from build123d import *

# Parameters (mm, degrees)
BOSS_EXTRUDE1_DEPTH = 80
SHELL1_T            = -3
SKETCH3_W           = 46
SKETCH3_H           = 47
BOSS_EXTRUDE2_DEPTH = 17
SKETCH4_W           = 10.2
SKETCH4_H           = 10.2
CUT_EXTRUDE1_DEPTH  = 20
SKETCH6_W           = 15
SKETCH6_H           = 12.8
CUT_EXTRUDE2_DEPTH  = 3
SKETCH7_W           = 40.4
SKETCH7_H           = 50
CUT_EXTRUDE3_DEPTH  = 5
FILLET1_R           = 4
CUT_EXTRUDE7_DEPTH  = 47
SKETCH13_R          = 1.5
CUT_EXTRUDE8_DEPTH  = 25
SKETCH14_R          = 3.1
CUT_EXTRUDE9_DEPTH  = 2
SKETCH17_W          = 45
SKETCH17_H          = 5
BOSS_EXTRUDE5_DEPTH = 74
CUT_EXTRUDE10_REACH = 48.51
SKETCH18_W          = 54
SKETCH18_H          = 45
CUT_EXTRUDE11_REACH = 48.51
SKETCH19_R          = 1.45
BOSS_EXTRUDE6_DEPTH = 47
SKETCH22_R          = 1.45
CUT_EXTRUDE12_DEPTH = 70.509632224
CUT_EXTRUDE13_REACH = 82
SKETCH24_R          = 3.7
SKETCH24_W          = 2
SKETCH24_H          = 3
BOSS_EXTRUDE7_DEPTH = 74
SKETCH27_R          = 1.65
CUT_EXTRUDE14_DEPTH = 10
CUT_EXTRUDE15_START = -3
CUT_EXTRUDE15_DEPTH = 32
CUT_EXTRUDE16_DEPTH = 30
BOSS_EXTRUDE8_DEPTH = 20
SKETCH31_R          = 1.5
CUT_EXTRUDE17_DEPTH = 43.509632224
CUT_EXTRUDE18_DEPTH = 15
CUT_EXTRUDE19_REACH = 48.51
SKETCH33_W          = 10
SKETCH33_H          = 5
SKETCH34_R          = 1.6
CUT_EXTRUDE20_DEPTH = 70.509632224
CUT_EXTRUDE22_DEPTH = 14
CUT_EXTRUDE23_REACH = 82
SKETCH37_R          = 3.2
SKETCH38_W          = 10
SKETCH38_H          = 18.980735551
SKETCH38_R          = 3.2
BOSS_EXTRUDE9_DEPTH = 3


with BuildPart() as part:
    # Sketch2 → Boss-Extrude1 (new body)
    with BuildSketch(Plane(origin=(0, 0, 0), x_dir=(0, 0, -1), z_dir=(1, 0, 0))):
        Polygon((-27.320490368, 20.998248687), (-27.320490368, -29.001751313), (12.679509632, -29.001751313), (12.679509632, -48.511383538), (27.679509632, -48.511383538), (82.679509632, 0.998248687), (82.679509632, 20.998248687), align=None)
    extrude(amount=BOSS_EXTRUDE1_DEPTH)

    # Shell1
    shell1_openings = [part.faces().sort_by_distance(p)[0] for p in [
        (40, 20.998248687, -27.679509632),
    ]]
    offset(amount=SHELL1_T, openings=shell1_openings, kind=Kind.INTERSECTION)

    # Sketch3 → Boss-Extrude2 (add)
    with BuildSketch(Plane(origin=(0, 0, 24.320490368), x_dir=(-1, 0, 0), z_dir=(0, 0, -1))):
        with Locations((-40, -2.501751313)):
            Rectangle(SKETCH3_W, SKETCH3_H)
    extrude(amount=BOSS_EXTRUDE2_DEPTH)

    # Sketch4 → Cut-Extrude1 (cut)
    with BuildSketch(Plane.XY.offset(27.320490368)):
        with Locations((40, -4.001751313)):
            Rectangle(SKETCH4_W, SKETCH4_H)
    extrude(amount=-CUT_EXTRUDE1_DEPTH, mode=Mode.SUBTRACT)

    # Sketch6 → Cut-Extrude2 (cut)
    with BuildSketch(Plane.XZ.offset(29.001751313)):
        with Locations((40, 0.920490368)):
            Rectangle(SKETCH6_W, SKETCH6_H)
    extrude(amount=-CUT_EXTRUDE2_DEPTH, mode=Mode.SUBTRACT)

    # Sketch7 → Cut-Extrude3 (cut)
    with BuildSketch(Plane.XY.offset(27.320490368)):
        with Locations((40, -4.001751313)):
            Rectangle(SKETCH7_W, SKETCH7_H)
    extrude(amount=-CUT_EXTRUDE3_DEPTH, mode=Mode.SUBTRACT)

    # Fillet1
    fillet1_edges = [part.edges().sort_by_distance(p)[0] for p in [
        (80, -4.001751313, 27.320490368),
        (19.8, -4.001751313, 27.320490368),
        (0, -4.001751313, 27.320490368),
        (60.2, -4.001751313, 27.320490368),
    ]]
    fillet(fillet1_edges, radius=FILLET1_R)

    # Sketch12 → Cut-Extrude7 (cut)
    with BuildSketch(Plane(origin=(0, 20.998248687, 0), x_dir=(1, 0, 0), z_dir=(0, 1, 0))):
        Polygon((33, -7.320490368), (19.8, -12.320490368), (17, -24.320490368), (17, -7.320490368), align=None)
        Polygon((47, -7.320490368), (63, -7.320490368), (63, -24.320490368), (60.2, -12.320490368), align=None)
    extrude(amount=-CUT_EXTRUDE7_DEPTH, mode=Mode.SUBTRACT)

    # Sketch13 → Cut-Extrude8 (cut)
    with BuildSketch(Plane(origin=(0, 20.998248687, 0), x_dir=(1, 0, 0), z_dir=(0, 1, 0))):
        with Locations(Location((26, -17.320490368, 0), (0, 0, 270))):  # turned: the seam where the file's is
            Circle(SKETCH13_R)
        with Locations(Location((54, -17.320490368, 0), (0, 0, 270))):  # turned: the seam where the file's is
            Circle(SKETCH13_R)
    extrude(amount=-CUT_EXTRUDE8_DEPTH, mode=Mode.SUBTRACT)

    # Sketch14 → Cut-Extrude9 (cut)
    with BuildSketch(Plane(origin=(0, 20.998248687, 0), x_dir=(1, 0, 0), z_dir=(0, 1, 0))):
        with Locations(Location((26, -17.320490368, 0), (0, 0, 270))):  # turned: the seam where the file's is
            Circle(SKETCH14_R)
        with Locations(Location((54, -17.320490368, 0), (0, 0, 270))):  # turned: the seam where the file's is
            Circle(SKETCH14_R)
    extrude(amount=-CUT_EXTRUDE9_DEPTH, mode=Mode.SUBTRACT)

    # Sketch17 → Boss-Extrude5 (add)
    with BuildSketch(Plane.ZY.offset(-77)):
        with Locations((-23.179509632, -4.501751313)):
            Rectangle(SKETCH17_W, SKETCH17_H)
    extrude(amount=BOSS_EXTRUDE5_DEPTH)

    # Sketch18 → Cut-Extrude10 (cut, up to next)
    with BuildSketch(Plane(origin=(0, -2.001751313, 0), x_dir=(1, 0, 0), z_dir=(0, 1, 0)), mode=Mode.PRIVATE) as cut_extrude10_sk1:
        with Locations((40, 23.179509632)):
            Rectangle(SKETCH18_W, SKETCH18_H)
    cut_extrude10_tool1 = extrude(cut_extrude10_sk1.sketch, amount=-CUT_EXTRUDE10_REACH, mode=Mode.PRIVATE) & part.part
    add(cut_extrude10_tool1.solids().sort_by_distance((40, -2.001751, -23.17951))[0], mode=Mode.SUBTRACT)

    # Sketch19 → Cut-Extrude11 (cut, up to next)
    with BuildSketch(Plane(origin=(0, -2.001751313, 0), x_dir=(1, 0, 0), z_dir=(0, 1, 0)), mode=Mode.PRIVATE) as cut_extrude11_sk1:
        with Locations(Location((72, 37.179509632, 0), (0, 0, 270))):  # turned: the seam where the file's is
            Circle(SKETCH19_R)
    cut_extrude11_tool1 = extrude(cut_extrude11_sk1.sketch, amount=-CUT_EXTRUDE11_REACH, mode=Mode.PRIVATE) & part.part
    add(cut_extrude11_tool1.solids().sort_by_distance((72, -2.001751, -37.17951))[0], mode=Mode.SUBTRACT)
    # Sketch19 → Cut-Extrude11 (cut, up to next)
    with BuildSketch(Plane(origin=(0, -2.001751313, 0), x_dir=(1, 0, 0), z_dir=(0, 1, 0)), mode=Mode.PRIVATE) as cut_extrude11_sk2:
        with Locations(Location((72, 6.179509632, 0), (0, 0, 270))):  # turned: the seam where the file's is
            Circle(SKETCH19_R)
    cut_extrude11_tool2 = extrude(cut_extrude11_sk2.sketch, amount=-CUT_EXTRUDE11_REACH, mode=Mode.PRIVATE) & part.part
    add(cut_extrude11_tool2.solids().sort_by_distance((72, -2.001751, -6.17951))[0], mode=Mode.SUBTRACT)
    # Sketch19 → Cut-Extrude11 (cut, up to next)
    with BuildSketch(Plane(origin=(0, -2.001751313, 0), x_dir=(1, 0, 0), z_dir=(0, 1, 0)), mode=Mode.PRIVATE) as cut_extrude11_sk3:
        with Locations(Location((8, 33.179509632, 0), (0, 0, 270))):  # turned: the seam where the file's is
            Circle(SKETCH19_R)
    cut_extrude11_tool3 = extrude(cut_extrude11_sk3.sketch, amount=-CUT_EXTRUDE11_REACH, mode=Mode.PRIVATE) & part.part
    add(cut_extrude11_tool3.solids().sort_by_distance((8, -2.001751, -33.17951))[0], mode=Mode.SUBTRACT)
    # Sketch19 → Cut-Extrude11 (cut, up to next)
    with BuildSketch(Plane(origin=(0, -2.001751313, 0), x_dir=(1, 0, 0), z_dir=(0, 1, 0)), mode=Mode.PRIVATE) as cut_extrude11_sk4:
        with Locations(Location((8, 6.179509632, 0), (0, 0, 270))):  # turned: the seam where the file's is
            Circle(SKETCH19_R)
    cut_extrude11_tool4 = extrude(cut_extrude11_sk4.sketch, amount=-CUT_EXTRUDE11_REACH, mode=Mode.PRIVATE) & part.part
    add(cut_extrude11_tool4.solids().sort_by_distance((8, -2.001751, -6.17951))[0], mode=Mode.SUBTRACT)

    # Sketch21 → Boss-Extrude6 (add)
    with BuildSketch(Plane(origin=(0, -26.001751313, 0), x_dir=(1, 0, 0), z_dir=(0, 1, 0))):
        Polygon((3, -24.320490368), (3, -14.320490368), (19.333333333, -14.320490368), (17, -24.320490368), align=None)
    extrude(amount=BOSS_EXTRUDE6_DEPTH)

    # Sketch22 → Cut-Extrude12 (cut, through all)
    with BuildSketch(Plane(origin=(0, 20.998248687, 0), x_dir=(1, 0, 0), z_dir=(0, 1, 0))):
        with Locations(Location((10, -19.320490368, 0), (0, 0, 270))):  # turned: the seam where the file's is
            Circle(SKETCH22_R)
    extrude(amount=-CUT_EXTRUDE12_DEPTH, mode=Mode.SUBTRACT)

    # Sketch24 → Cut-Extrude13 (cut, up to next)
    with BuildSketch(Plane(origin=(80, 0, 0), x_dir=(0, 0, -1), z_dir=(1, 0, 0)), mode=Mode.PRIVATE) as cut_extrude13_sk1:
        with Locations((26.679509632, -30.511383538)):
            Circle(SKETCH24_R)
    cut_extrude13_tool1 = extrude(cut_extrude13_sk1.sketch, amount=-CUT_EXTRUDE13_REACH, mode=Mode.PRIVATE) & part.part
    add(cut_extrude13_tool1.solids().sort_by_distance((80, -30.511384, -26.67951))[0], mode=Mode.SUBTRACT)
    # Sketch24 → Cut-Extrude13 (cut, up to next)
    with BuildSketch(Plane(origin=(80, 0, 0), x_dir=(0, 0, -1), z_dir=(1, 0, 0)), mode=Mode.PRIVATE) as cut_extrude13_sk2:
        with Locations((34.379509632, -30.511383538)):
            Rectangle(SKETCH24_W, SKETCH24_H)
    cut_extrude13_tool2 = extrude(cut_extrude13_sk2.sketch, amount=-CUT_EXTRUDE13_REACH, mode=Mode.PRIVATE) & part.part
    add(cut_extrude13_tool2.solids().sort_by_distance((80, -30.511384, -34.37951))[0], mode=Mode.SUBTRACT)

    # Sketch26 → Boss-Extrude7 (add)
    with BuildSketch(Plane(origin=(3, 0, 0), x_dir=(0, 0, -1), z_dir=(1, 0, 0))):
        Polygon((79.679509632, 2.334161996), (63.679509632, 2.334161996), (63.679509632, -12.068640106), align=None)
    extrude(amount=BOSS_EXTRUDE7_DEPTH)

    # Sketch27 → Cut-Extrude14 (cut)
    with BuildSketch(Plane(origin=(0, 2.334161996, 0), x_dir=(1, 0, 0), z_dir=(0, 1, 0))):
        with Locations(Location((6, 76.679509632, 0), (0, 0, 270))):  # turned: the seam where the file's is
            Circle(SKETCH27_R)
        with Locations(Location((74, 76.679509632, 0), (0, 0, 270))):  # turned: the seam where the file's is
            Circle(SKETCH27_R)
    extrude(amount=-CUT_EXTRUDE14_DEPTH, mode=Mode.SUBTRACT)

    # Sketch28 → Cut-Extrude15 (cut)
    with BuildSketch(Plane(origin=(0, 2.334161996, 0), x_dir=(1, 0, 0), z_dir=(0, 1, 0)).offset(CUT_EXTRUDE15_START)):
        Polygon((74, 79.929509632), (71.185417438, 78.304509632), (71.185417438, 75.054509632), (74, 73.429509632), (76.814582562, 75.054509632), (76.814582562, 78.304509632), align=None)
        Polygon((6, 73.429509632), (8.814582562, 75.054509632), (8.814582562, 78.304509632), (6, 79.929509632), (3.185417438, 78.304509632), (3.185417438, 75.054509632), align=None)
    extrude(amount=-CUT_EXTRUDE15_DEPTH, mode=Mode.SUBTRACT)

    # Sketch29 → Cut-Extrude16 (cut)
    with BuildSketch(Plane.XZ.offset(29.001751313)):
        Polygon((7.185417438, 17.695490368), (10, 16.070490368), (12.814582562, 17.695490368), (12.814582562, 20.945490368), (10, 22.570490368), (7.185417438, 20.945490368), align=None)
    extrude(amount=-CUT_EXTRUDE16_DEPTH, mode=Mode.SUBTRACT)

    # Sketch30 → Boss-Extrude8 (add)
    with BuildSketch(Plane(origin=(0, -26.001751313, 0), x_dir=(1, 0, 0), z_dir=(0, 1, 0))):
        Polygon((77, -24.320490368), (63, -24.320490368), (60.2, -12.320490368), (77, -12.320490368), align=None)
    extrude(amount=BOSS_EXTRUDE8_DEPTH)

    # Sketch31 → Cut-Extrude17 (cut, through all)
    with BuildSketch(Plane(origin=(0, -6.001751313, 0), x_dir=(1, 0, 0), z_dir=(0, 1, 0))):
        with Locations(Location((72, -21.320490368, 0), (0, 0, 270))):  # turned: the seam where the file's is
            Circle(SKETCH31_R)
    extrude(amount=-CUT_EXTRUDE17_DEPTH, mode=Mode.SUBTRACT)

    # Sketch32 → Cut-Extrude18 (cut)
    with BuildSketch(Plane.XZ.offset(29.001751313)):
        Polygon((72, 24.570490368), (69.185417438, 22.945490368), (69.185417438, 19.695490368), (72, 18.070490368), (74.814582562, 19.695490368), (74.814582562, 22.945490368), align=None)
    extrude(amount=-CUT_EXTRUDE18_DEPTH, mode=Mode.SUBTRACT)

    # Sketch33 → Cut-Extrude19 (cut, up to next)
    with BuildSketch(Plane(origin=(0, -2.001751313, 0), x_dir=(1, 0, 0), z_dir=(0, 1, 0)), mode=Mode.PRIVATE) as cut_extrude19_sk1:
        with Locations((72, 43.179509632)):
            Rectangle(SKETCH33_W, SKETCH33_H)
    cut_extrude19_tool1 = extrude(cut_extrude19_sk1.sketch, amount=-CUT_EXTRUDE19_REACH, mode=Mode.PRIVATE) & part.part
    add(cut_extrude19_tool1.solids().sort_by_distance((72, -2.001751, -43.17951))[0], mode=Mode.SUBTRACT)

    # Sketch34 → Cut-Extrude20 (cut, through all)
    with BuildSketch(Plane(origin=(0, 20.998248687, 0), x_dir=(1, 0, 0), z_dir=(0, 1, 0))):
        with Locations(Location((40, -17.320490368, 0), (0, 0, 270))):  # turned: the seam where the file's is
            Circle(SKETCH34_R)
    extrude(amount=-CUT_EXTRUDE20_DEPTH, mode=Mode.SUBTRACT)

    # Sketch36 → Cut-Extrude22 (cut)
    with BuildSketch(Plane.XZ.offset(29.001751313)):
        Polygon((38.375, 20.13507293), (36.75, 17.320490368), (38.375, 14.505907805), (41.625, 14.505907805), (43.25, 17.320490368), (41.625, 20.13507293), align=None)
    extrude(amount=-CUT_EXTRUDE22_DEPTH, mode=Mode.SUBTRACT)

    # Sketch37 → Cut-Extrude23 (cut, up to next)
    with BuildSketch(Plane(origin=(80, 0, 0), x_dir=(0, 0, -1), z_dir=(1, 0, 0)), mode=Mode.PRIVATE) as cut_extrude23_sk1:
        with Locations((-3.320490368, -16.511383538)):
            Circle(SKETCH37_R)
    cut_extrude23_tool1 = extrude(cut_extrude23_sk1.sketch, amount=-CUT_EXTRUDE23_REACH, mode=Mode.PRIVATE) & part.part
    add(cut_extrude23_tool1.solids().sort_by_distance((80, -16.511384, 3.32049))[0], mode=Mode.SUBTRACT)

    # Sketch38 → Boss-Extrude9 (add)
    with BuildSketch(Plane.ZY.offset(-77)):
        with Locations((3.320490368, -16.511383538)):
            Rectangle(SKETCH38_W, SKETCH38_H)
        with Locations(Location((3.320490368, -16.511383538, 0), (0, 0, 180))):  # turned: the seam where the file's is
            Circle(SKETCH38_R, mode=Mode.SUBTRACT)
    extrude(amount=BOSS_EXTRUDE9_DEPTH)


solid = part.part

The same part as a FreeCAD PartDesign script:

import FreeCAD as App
import Part
import Sketcher
Q = App.Units.Quantity


def edges_at(feature, points):
    """Names of the edges that pass closest to the given points."""
    edges = feature.Shape.Edges
    near = lambda p: min(range(len(edges)), key=lambda i: edges[i].distToShape(Part.Vertex(*p))[0])
    return sorted({f"Edge{near(p) + 1}" for p in points})


def faces_at(feature, points):
    """Names of the faces that lie closest to the given points."""
    faces = feature.Shape.Faces
    near = lambda p: min(range(len(faces)), key=lambda i: faces[i].distToShape(Part.Vertex(*p))[0])
    return sorted({f"Face{near(p) + 1}" for p in points})


def add_polygon(sketch, points):
    """Adds a closed chain of lines whose ends are joined by coincident constraints."""
    first, n = sketch.GeometryCount, len(points)
    for a, b in zip(points, points[1:] + points[:1]):
        sketch.addGeometry(Part.LineSegment(App.Vector(*a, 0), App.Vector(*b, 0)), False)
    for i in range(n):
        sketch.addConstraint(Sketcher.Constraint("Coincident", first + i, 2, first + (i + 1) % n, 1))

doc = App.newDocument("Part")
body = doc.addObject("PartDesign::Body", "Body")

# Sketch on YZ plane
sketch1 = body.newObject("Sketcher::SketchObject", "Sketch")
sketch1.AttachmentSupport = (doc.getObject("YZ_Plane"), [""])
sketch1.MapMode = "FlatFace"
add_polygon(sketch1, [(21, 27), (-29, 27), (-29, -13), (-49, -13), (-49, -28), (1, -83), (21, -83)])  # lines 0-6
sketch1.addConstraint([
    Sketcher.Constraint("Horizontal", 0),
    Sketcher.Constraint("Vertical", 1),
    Sketcher.Constraint("Horizontal", 2),
    Sketcher.Constraint("Vertical", 3),
    Sketcher.Constraint("Horizontal", 5),
    Sketcher.Constraint("Vertical", 6),
    Sketcher.Constraint("DistanceX", 0, 2, 0, 1, Q("50 mm")),
    Sketcher.Constraint("DistanceX", 5, 1, 5, 2, Q("20 mm")),
    Sketcher.Constraint("DistanceY", 1, 2, 1, 1, Q("40 mm")),
    Sketcher.Constraint("DistanceY", 3, 2, 3, 1, Q("15 mm")),
    Sketcher.Constraint("DistanceY", 6, 1, 6, 2, Q("110 mm")),
    Sketcher.Constraint("DistanceX", 2, 2, 2, 1, Q("19.509632 mm")),
    Sketcher.Constraint("DistanceX", 0, 2, -1, 1, Q("29.001751 mm")),
    Sketcher.Constraint("DistanceY", -1, 1, 0, 2, Q("27.32049 mm")),
])
pad1 = body.newObject("PartDesign::Pad", "Pad")
pad1.Profile = sketch1
pad1.Length = 80
doc.recompute()

thickness = body.newObject("PartDesign::Thickness", "Thickness")
thickness.Base = (pad1, faces_at(pad1, [(40, 20.998, -27.68)]))
thickness.Value = 3
thickness.Reversed = True
thickness.Join = "Intersection"

# Sketch on XY plane
sketch2 = body.newObject("Sketcher::SketchObject", "Sketch001")
sketch2.AttachmentSupport = (doc.getObject("XY_Plane"), [""])
sketch2.MapMode = "FlatFace"
sketch2.AttachmentOffset = App.Placement(App.Vector(0, 0, 24.32049), App.Rotation())
add_polygon(sketch2, [(63, 21), (63, -26), (17, -26), (17, 21)])  # lines 0-3
sketch2.addConstraint([
    Sketcher.Constraint("Vertical", 0),
    Sketcher.Constraint("Horizontal", 1),
    Sketcher.Constraint("Vertical", 2),
    Sketcher.Constraint("Horizontal", 3),
    Sketcher.Constraint("DistanceX", 1, 2, 1, 1, Q("46 mm")),
    Sketcher.Constraint("DistanceY", 0, 2, 0, 1, Q("47 mm")),
    Sketcher.Constraint("DistanceX", -1, 1, 0, 2, Q("63 mm")),
    Sketcher.Constraint("DistanceY", 0, 2, -1, 1, Q("26.001751 mm")),
])
pad2 = body.newObject("PartDesign::Pad", "Pad001")
pad2.Profile = sketch2
pad2.Length = 17
pad2.Reversed = True

# Sketch on XY plane
sketch3 = body.newObject("Sketcher::SketchObject", "Sketch002")
sketch3.AttachmentSupport = (doc.getObject("XY_Plane"), [""])
sketch3.MapMode = "FlatFace"
sketch3.AttachmentOffset = App.Placement(App.Vector(0, 0, 27.32049), App.Rotation())
add_polygon(sketch3, [(35, 1), (35, -9), (45, -9), (45, 1)])  # lines 0-3
sketch3.addConstraint([
    Sketcher.Constraint("Vertical", 0),
    Sketcher.Constraint("Horizontal", 1),
    Sketcher.Constraint("Vertical", 2),
    Sketcher.Constraint("Horizontal", 3),
    Sketcher.Constraint("Equal", 3, 0),
    Sketcher.Constraint("DistanceX", 1, 1, 1, 2, Q("10.2 mm")),
    Sketcher.Constraint("DistanceX", -1, 1, 0, 2, Q("34.9 mm")),
    Sketcher.Constraint("DistanceY", 0, 2, -1, 1, Q("9.101751 mm")),
])
pocket1 = body.newObject("PartDesign::Pocket", "Pocket")
pocket1.Profile = sketch3
pocket1.Length = 20

# Sketch on XZ plane
sketch4 = body.newObject("Sketcher::SketchObject", "Sketch003")
sketch4.AttachmentSupport = (doc.getObject("XZ_Plane"), [""])
sketch4.MapMode = "FlatFace"
sketch4.AttachmentOffset = App.Placement(App.Vector(0, 0, 29.001751), App.Rotation())
add_polygon(sketch4, [(32, 7), (32, -5), (48, -5), (48, 7)])  # lines 0-3
sketch4.addConstraint([
    Sketcher.Constraint("Vertical", 0),
    Sketcher.Constraint("Horizontal", 1),
    Sketcher.Constraint("Vertical", 2),
    Sketcher.Constraint("Horizontal", 3),
    Sketcher.Constraint("DistanceX", 1, 1, 1, 2, Q("15 mm")),
    Sketcher.Constraint("DistanceY", 0, 2, 0, 1, Q("12.8 mm")),
    Sketcher.Constraint("DistanceX", -1, 1, 0, 2, Q("32.5 mm")),
    Sketcher.Constraint("DistanceY", 0, 2, -1, 1, Q("5.47951 mm")),
])
pocket2 = body.newObject("PartDesign::Pocket", "Pocket001")
pocket2.Profile = sketch4
pocket2.Length = 3

# Sketch on XY plane
sketch5 = body.newObject("Sketcher::SketchObject", "Sketch004")
sketch5.AttachmentSupport = (doc.getObject("XY_Plane"), [""])
sketch5.MapMode = "FlatFace"
sketch5.AttachmentOffset = App.Placement(App.Vector(0, 0, 27.32049), App.Rotation())
add_polygon(sketch5, [(20, 21), (20, -29), (60, -29), (60, 21)])  # lines 0-3
sketch5.addConstraint([
    Sketcher.Constraint("Vertical", 0),
    Sketcher.Constraint("Horizontal", 1),
    Sketcher.Constraint("Vertical", 2),
    Sketcher.Constraint("Horizontal", 3),
    Sketcher.Constraint("DistanceY", 0, 2, 0, 1, Q("50 mm")),
    Sketcher.Constraint("DistanceX", 1, 1, 1, 2, Q("40.4 mm")),
    Sketcher.Constraint("DistanceX", -1, 1, 0, 2, Q("19.8 mm")),
    Sketcher.Constraint("DistanceY", 0, 2, -1, 1, Q("29.001751 mm")),
])
pocket3 = body.newObject("PartDesign::Pocket", "Pocket002")
pocket3.Profile = sketch5
pocket3.Length = 5
doc.recompute()

fillet = body.newObject("PartDesign::Fillet", "Fillet")
fillet.Base = (pocket3, edges_at(pocket3, [
    (80, -4.002, 27.32),
    (19.8, -4.002, 27.32),
    (0, -4.002, 27.32),
    (60.2, -4.002, 27.32),
]))
fillet.Radius = 4

# Sketch on XZ plane
sketch6 = body.newObject("Sketcher::SketchObject", "Sketch005")
sketch6.AttachmentSupport = (doc.getObject("XZ_Plane"), [""])
sketch6.MapMode = "FlatFace"
sketch6.AttachmentOffset = App.Placement(App.Vector(0, 0, -20.998249), App.Rotation())
add_polygon(sketch6, [(20, 12), (33, 7), (17, 7), (17, 24)])  # lines 0-3
add_polygon(sketch6, [(63, 7), (47, 7), (60, 12), (63, 24)])  # lines 4-7
sketch6.addConstraint([
    Sketcher.Constraint("Horizontal", 1),
    Sketcher.Constraint("Vertical", 2),
    Sketcher.Constraint("Horizontal", 4),
    Sketcher.Constraint("Vertical", 7),
    Sketcher.Constraint("Horizontal", 1, 2, 4, 2),
    Sketcher.Constraint("Horizontal", 3, 2, 5, 2),
    Sketcher.Constraint("Horizontal", 2, 2, 6, 2),
    Sketcher.Constraint("Equal", 1, 4),
    Sketcher.Constraint("Equal", 0, 5),
    Sketcher.Constraint("DistanceX", 1, 2, 1, 1, Q("16 mm")),
    Sketcher.Constraint("DistanceY", 2, 1, 2, 2, Q("17 mm")),
    Sketcher.Constraint("DistanceX", -1, 1, 0, 2, Q("33 mm")),
    Sketcher.Constraint("DistanceX", -1, 1, 4, 2, Q("47 mm")),
    Sketcher.Constraint("DistanceY", 1, 2, 3, 2, Q("5 mm")),
    Sketcher.Constraint("DistanceX", -1, 1, 3, 2, Q("19.8 mm")),
    Sketcher.Constraint("DistanceY", -1, 1, 0, 2, Q("7.32049 mm")),
])
pocket4 = body.newObject("PartDesign::Pocket", "Pocket003")
pocket4.Profile = sketch6
pocket4.Length = 47
pocket4.Reversed = True

# Sketch on XZ plane
sketch7 = body.newObject("Sketcher::SketchObject", "Sketch006")
sketch7.AttachmentSupport = (doc.getObject("XZ_Plane"), [""])
sketch7.MapMode = "FlatFace"
sketch7.AttachmentOffset = App.Placement(App.Vector(0, 0, -20.998249), App.Rotation())
sketch7.addGeometry([
    Part.Circle(App.Vector(26, 17.3, 0), App.Vector(0, 0, 1), 1.5),
    Part.Circle(App.Vector(54, 17.3, 0), App.Vector(0, 0, 1), 1.5),
], False)
sketch7.addConstraint([
    Sketcher.Constraint("Equal", 0, 1),
    Sketcher.Constraint("Horizontal", 0, 3, 1, 3),
    Sketcher.Constraint("Diameter", 0, Q("3 mm")),
    Sketcher.Constraint("DistanceX", -1, 1, 0, 3, Q("26 mm")),
    Sketcher.Constraint("DistanceX", -1, 1, 1, 3, Q("54 mm")),
    Sketcher.Constraint("DistanceY", -1, 1, 0, 3, Q("17.32049 mm")),
])
pocket5 = body.newObject("PartDesign::Pocket", "Pocket004")
pocket5.Profile = sketch7
pocket5.Length = 25
pocket5.Reversed = True

# Sketch on XZ plane
sketch8 = body.newObject("Sketcher::SketchObject", "Sketch007")
sketch8.AttachmentSupport = (doc.getObject("XZ_Plane"), [""])
sketch8.MapMode = "FlatFace"
sketch8.AttachmentOffset = App.Placement(App.Vector(0, 0, -20.998249), App.Rotation())
sketch8.addGeometry([
    Part.Circle(App.Vector(26, 17.3, 0), App.Vector(0, 0, 1), 3.1),
    Part.Circle(App.Vector(54, 17.3, 0), App.Vector(0, 0, 1), 3.1),
], False)
sketch8.addConstraint([
    Sketcher.Constraint("Equal", 0, 1),
    Sketcher.Constraint("Horizontal", 0, 3, 1, 3),
    Sketcher.Constraint("Diameter", 0, Q("6.2 mm")),
    Sketcher.Constraint("DistanceX", -1, 1, 0, 3, Q("26 mm")),
    Sketcher.Constraint("DistanceX", -1, 1, 1, 3, Q("54 mm")),
    Sketcher.Constraint("DistanceY", -1, 1, 0, 3, Q("17.32049 mm")),
])
pocket6 = body.newObject("PartDesign::Pocket", "Pocket005")
pocket6.Profile = sketch8
pocket6.Length = 2
pocket6.Reversed = True

# Sketch on YZ plane
sketch9 = body.newObject("Sketcher::SketchObject", "Sketch008")
sketch9.AttachmentSupport = (doc.getObject("YZ_Plane"), [""])
sketch9.MapMode = "FlatFace"
sketch9.AttachmentOffset = App.Placement(App.Vector(0, 0, 77), App.Rotation())
add_polygon(sketch9, [(-2, -46), (-7, -46), (-7, -1), (-2, -1)])  # lines 0-3
sketch9.addConstraint([
    Sketcher.Constraint("Horizontal", 0),
    Sketcher.Constraint("Vertical", 1),
    Sketcher.Constraint("Horizontal", 2),
    Sketcher.Constraint("Vertical", 3),
    Sketcher.Constraint("DistanceX", 0, 2, 0, 1, Q("5 mm")),
    Sketcher.Constraint("DistanceY", 1, 1, 1, 2, Q("45 mm")),
    Sketcher.Constraint("DistanceX", 0, 2, -1, 1, Q("7.001751 mm")),
    Sketcher.Constraint("DistanceY", 0, 2, -1, 1, Q("45.67951 mm")),
])
pad3 = body.newObject("PartDesign::Pad", "Pad002")
pad3.Profile = sketch9
pad3.Length = 74
pad3.Reversed = True

# Sketch on XZ plane
sketch10 = body.newObject("Sketcher::SketchObject", "Sketch009")
sketch10.AttachmentSupport = (doc.getObject("XZ_Plane"), [""])
sketch10.MapMode = "FlatFace"
sketch10.AttachmentOffset = App.Placement(App.Vector(0, 0, 2.001751), App.Rotation())
add_polygon(sketch10, [(13, -46), (13, -1), (67, -1), (67, -46)])  # lines 0-3
sketch10.addConstraint([
    Sketcher.Constraint("Vertical", 0),
    Sketcher.Constraint("Horizontal", 1),
    Sketcher.Constraint("Vertical", 2),
    Sketcher.Constraint("Horizontal", 3),
    Sketcher.Constraint("DistanceX", 1, 1, 1, 2, Q("54 mm")),
    Sketcher.Constraint("DistanceY", 0, 1, 0, 2, Q("45 mm")),
    Sketcher.Constraint("DistanceX", -1, 1, 0, 2, Q("13 mm")),
    Sketcher.Constraint("DistanceY", 0, 2, -1, 1, Q("0.67951 mm")),
])
pocket7 = body.newObject("PartDesign::Pocket", "Pocket006")
pocket7.Profile = sketch10
pocket7.Type = "UpToFirst"
pocket7.Reversed = True

# Sketch on XZ plane
sketch11 = body.newObject("Sketcher::SketchObject", "Sketch010")
sketch11.AttachmentSupport = (doc.getObject("XZ_Plane"), [""])
sketch11.MapMode = "FlatFace"
sketch11.AttachmentOffset = App.Placement(App.Vector(0, 0, 2.001751), App.Rotation())
sketch11.addGeometry(Part.Circle(App.Vector(72, -37.2, 0), App.Vector(0, 0, 1), 1.4), False)
sketch11.addConstraint([
    Sketcher.Constraint("Diameter", 0, Q("2.9 mm")),
    Sketcher.Constraint("DistanceX", -1, 1, 0, 3, Q("72 mm")),
    Sketcher.Constraint("DistanceY", 0, 3, -1, 1, Q("37.17951 mm")),
])
pocket8 = body.newObject("PartDesign::Pocket", "Pocket007")
pocket8.Profile = sketch11
pocket8.Type = "UpToFirst"
pocket8.Reversed = True

# Sketch on XZ plane
sketch12 = body.newObject("Sketcher::SketchObject", "Sketch011")
sketch12.AttachmentSupport = (doc.getObject("XZ_Plane"), [""])
sketch12.MapMode = "FlatFace"
sketch12.AttachmentOffset = App.Placement(App.Vector(0, 0, 2.001751), App.Rotation())
sketch12.addGeometry(Part.Circle(App.Vector(72, -6.2, 0), App.Vector(0, 0, 1), 1.4), False)
sketch12.addConstraint([
    Sketcher.Constraint("Diameter", 0, Q("2.9 mm")),
    Sketcher.Constraint("DistanceX", -1, 1, 0, 3, Q("72 mm")),
    Sketcher.Constraint("DistanceY", 0, 3, -1, 1, Q("6.17951 mm")),
])
pocket9 = body.newObject("PartDesign::Pocket", "Pocket008")
pocket9.Profile = sketch12
pocket9.Type = "UpToFirst"
pocket9.Reversed = True

# Sketch on XZ plane
sketch13 = body.newObject("Sketcher::SketchObject", "Sketch012")
sketch13.AttachmentSupport = (doc.getObject("XZ_Plane"), [""])
sketch13.MapMode = "FlatFace"
sketch13.AttachmentOffset = App.Placement(App.Vector(0, 0, 2.001751), App.Rotation())
sketch13.addGeometry(Part.Circle(App.Vector(8, -33.2, 0), App.Vector(0, 0, 1), 1.4), False)
sketch13.addConstraint([
    Sketcher.Constraint("Diameter", 0, Q("2.9 mm")),
    Sketcher.Constraint("DistanceX", -1, 1, 0, 3, Q("8 mm")),
    Sketcher.Constraint("DistanceY", 0, 3, -1, 1, Q("33.17951 mm")),
])
pocket10 = body.newObject("PartDesign::Pocket", "Pocket009")
pocket10.Profile = sketch13
pocket10.Type = "UpToFirst"
pocket10.Reversed = True

# Sketch on XZ plane
sketch14 = body.newObject("Sketcher::SketchObject", "Sketch013")
sketch14.AttachmentSupport = (doc.getObject("XZ_Plane"), [""])
sketch14.MapMode = "FlatFace"
sketch14.AttachmentOffset = App.Placement(App.Vector(0, 0, 2.001751), App.Rotation())
sketch14.addGeometry(Part.Circle(App.Vector(8, -6.2, 0), App.Vector(0, 0, 1), 1.4), False)
sketch14.addConstraint([
    Sketcher.Constraint("Diameter", 0, Q("2.9 mm")),
    Sketcher.Constraint("DistanceX", -1, 1, 0, 3, Q("8 mm")),
    Sketcher.Constraint("DistanceY", 0, 3, -1, 1, Q("6.17951 mm")),
])
pocket11 = body.newObject("PartDesign::Pocket", "Pocket010")
pocket11.Profile = sketch14
pocket11.Type = "UpToFirst"
pocket11.Reversed = True

# Sketch on XZ plane
sketch15 = body.newObject("Sketcher::SketchObject", "Sketch014")
sketch15.AttachmentSupport = (doc.getObject("XZ_Plane"), [""])
sketch15.MapMode = "FlatFace"
sketch15.AttachmentOffset = App.Placement(App.Vector(0, 0, 26.001751), App.Rotation())
add_polygon(sketch15, [(3, 14), (3, 24), (17, 24), (19, 14)])  # lines 0-3
sketch15.addConstraint([
    Sketcher.Constraint("Vertical", 0),
    Sketcher.Constraint("Horizontal", 1),
    Sketcher.Constraint("Horizontal", 3),
    Sketcher.Constraint("DistanceX", 1, 1, 1, 2, Q("14 mm")),
    Sketcher.Constraint("DistanceY", 0, 1, 0, 2, Q("10 mm")),
    Sketcher.Constraint("DistanceX", -1, 1, 0, 2, Q("3 mm")),
    Sketcher.Constraint("DistanceX", 3, 2, 3, 1, Q("16.333333 mm")),
    Sketcher.Constraint("DistanceY", -1, 1, 0, 2, Q("24.32049 mm")),
])
pad4 = body.newObject("PartDesign::Pad", "Pad003")
pad4.Profile = sketch15
pad4.Length = 47
pad4.Reversed = True

# Sketch on XZ plane
sketch16 = body.newObject("Sketcher::SketchObject", "Sketch015")
sketch16.AttachmentSupport = (doc.getObject("XZ_Plane"), [""])
sketch16.MapMode = "FlatFace"
sketch16.AttachmentOffset = App.Placement(App.Vector(0, 0, -20.998249), App.Rotation())
sketch16.addGeometry(Part.Circle(App.Vector(10, 19.3, 0), App.Vector(0, 0, 1), 1.4), False)
sketch16.addConstraint([
    Sketcher.Constraint("Diameter", 0, Q("2.9 mm")),
    Sketcher.Constraint("DistanceX", -1, 1, 0, 3, Q("10 mm")),
    Sketcher.Constraint("DistanceY", -1, 1, 0, 3, Q("19.32049 mm")),
])
pocket12 = body.newObject("PartDesign::Pocket", "Pocket011")
pocket12.Profile = sketch16
pocket12.Type = "ThroughAll"
pocket12.Reversed = True

# Sketch on YZ plane
sketch17 = body.newObject("Sketcher::SketchObject", "Sketch016")
sketch17.AttachmentSupport = (doc.getObject("YZ_Plane"), [""])
sketch17.MapMode = "FlatFace"
sketch17.AttachmentOffset = App.Placement(App.Vector(0, 0, 80), App.Rotation())
sketch17.addGeometry(Part.Circle(App.Vector(-30.5, -26.7, 0), App.Vector(0, 0, 1), 3.7), False)
sketch17.addConstraint([
    Sketcher.Constraint("Diameter", 0, Q("7.4 mm")),
    Sketcher.Constraint("DistanceY", 0, 3, -1, 1, Q("26.67951 mm")),
    Sketcher.Constraint("DistanceX", 0, 3, -1, 1, Q("30.511384 mm")),
])
pocket13 = body.newObject("PartDesign::Pocket", "Pocket012")
pocket13.Profile = sketch17
pocket13.Type = "UpToFirst"

# Sketch on YZ plane
sketch18 = body.newObject("Sketcher::SketchObject", "Sketch017")
sketch18.AttachmentSupport = (doc.getObject("YZ_Plane"), [""])
sketch18.MapMode = "FlatFace"
sketch18.AttachmentOffset = App.Placement(App.Vector(0, 0, 80), App.Rotation())
add_polygon(sketch18, [(-29, -33.4), (-32, -33.4), (-32, -35.4), (-29, -35.4)])  # lines 0-3
sketch18.addConstraint([
    Sketcher.Constraint("Horizontal", 0),
    Sketcher.Constraint("Vertical", 1),
    Sketcher.Constraint("Horizontal", 2),
    Sketcher.Constraint("Vertical", 3),
    Sketcher.Constraint("DistanceX", 0, 2, 0, 1, Q("3 mm")),
    Sketcher.Constraint("DistanceY", 1, 2, 1, 1, Q("2 mm")),
    Sketcher.Constraint("DistanceY", 0, 2, -1, 1, Q("33.37951 mm")),
    Sketcher.Constraint("DistanceX", 0, 2, -1, 1, Q("32.011384 mm")),
])
pocket14 = body.newObject("PartDesign::Pocket", "Pocket013")
pocket14.Profile = sketch18
pocket14.Type = "UpToFirst"

# Sketch on YZ plane
sketch19 = body.newObject("Sketcher::SketchObject", "Sketch018")
sketch19.AttachmentSupport = (doc.getObject("YZ_Plane"), [""])
sketch19.MapMode = "FlatFace"
sketch19.AttachmentOffset = App.Placement(App.Vector(0, 0, 3), App.Rotation())
add_polygon(sketch19, [(2, -80), (2, -64), (-12, -64)])  # lines 0-2
sketch19.addConstraint([
    Sketcher.Constraint("Vertical", 0),
    Sketcher.Constraint("Horizontal", 1),
    Sketcher.Constraint("DistanceY", 0, 1, 0, 2, Q("16 mm")),
    Sketcher.Constraint("DistanceX", 1, 2, 1, 1, Q("14.402802 mm")),
    Sketcher.Constraint("DistanceX", -1, 1, 0, 2, Q("2.334162 mm")),
    Sketcher.Constraint("DistanceY", 0, 2, -1, 1, Q("63.67951 mm")),
])
pad5 = body.newObject("PartDesign::Pad", "Pad004")
pad5.Profile = sketch19
pad5.Length = 74

# Sketch on XZ plane
sketch20 = body.newObject("Sketcher::SketchObject", "Sketch019")
sketch20.AttachmentSupport = (doc.getObject("XZ_Plane"), [""])
sketch20.MapMode = "FlatFace"
sketch20.AttachmentOffset = App.Placement(App.Vector(0, 0, -2.334162), App.Rotation())
sketch20.addGeometry([
    Part.Circle(App.Vector(6, -76.7, 0), App.Vector(0, 0, 1), 1.6),
    Part.Circle(App.Vector(74, -76.7, 0), App.Vector(0, 0, 1), 1.6),
], False)
sketch20.addConstraint([
    Sketcher.Constraint("Equal", 0, 1),
    Sketcher.Constraint("Horizontal", 0, 3, 1, 3),
    Sketcher.Constraint("Diameter", 0, Q("3.3 mm")),
    Sketcher.Constraint("DistanceX", -1, 1, 0, 3, Q("6 mm")),
    Sketcher.Constraint("DistanceX", -1, 1, 1, 3, Q("74 mm")),
    Sketcher.Constraint("DistanceY", 0, 3, -1, 1, Q("76.67951 mm")),
])
pocket15 = body.newObject("PartDesign::Pocket", "Pocket014")
pocket15.Profile = sketch20
pocket15.Length = 10
pocket15.Reversed = True

# Sketch on XZ plane
sketch21 = body.newObject("Sketcher::SketchObject", "Sketch020")
sketch21.AttachmentSupport = (doc.getObject("XZ_Plane"), [""])
sketch21.MapMode = "FlatFace"
sketch21.AttachmentOffset = App.Placement(App.Vector(0, 0, 0.665838), App.Rotation())
add_polygon(sketch21, [(74, -79.9), (71.2, -78.3), (71.2, -75.1), (74, -73.4), (76.8, -75.1), (76.8, -78.3)])  # lines 0-5
add_polygon(sketch21, [(6, -73.4), (8.8, -75.1), (8.8, -78.3), (6, -79.9), (3.2, -78.3), (3.2, -75.1)])  # lines 6-11
sketch21.addConstraint([
    Sketcher.Constraint("Vertical", 1),
    Sketcher.Constraint("Vertical", 4),
    Sketcher.Constraint("Vertical", 7),
    Sketcher.Constraint("Vertical", 10),
    Sketcher.Constraint("Parallel", 0, 3),
    Sketcher.Constraint("Parallel", 2, 5),
    Sketcher.Constraint("Parallel", 3, 6),
    Sketcher.Constraint("Parallel", 5, 8),
    Sketcher.Constraint("Parallel", 6, 9),
    Sketcher.Constraint("Parallel", 8, 11),
    Sketcher.Constraint("Horizontal", 1, 2, 3, 2),
    Sketcher.Constraint("Horizontal", 0, 2, 4, 2),
    Sketcher.Constraint("Horizontal", 3, 2, 6, 2),
    Sketcher.Constraint("Horizontal", 4, 2, 7, 2),
    Sketcher.Constraint("Horizontal", 5, 2, 8, 2),
    Sketcher.Constraint("Horizontal", 7, 2, 9, 2),
    Sketcher.Constraint("Horizontal", 6, 2, 10, 2),
    Sketcher.Constraint("Vertical", 2, 2, 5, 2),
    Sketcher.Constraint("Angle", 0, Q("150 deg")),
    Sketcher.Constraint("DistanceX", -1, 1, 2, 2, Q("74 mm")),
    Sketcher.Constraint("DistanceX", -1, 1, 8, 2, Q("6 mm")),
    Sketcher.Constraint("DistanceY", 1, 1, 1, 2, Q("3.25 mm")),
    Sketcher.Constraint("DistanceY", 5, 2, 2, 2, Q("6.5 mm")),
    Sketcher.Constraint("DistanceY", 0, 2, -1, 1, Q("78.30451 mm")),
])
pocket16 = body.newObject("PartDesign::Pocket", "Pocket015")
pocket16.Profile = sketch21
pocket16.Length = 32
pocket16.Reversed = True

# Sketch on XZ plane
sketch22 = body.newObject("Sketcher::SketchObject", "Sketch021")
sketch22.AttachmentSupport = (doc.getObject("XZ_Plane"), [""])
sketch22.MapMode = "FlatFace"
sketch22.AttachmentOffset = App.Placement(App.Vector(0, 0, 29.001751), App.Rotation())
add_polygon(sketch22, [(7.2, 17.7), (10, 16.1), (12.8, 17.7), (12.8, 20.9), (10, 22.6), (7.2, 20.9)])  # lines 0-5
sketch22.addConstraint([
    Sketcher.Constraint("Vertical", 2),
    Sketcher.Constraint("Vertical", 5),
    Sketcher.Constraint("Parallel", 0, 3),
    Sketcher.Constraint("Parallel", 1, 4),
    Sketcher.Constraint("Horizontal", 2, 2, 4, 2),
    Sketcher.Constraint("Horizontal", 1, 2, 5, 2),
    Sketcher.Constraint("Vertical", 0, 2, 3, 2),
    Sketcher.Constraint("Angle", 0, Q("-30 deg")),
    Sketcher.Constraint("DistanceX", -1, 1, 0, 2, Q("10 mm")),
    Sketcher.Constraint("DistanceY", 2, 1, 2, 2, Q("3.25 mm")),
    Sketcher.Constraint("DistanceY", 0, 2, 3, 2, Q("6.5 mm")),
    Sketcher.Constraint("DistanceY", -1, 1, 0, 2, Q("16.07049 mm")),
])
pocket17 = body.newObject("PartDesign::Pocket", "Pocket016")
pocket17.Profile = sketch22
pocket17.Length = 30

# Sketch on XZ plane
sketch23 = body.newObject("Sketcher::SketchObject", "Sketch022")
sketch23.AttachmentSupport = (doc.getObject("XZ_Plane"), [""])
sketch23.MapMode = "FlatFace"
sketch23.AttachmentOffset = App.Placement(App.Vector(0, 0, 26.001751), App.Rotation())
add_polygon(sketch23, [(63, 24), (77, 24), (77, 12), (60, 12)])  # lines 0-3
sketch23.addConstraint([
    Sketcher.Constraint("Horizontal", 0),
    Sketcher.Constraint("Vertical", 1),
    Sketcher.Constraint("Horizontal", 2),
    Sketcher.Constraint("DistanceX", 0, 1, 0, 2, Q("14 mm")),
    Sketcher.Constraint("DistanceY", 1, 2, 1, 1, Q("12 mm")),
    Sketcher.Constraint("DistanceX", 2, 2, 2, 1, Q("16.8 mm")),
    Sketcher.Constraint("DistanceX", -1, 1, 0, 2, Q("77 mm")),
    Sketcher.Constraint("DistanceY", -1, 1, 0, 2, Q("24.32049 mm")),
])
pad6 = body.newObject("PartDesign::Pad", "Pad005")
pad6.Profile = sketch23
pad6.Length = 20
pad6.Reversed = True

# Sketch on XZ plane
sketch24 = body.newObject("Sketcher::SketchObject", "Sketch023")
sketch24.AttachmentSupport = (doc.getObject("XZ_Plane"), [""])
sketch24.MapMode = "FlatFace"
sketch24.AttachmentOffset = App.Placement(App.Vector(0, 0, 6.001751), App.Rotation())
sketch24.addGeometry(Part.Circle(App.Vector(72, 21.3, 0), App.Vector(0, 0, 1), 1.5), False)
sketch24.addConstraint([
    Sketcher.Constraint("Diameter", 0, Q("3 mm")),
    Sketcher.Constraint("DistanceX", -1, 1, 0, 3, Q("72 mm")),
    Sketcher.Constraint("DistanceY", -1, 1, 0, 3, Q("21.32049 mm")),
])
pocket18 = body.newObject("PartDesign::Pocket", "Pocket017")
pocket18.Profile = sketch24
pocket18.Type = "ThroughAll"
pocket18.Reversed = True

# Sketch on XZ plane
sketch25 = body.newObject("Sketcher::SketchObject", "Sketch024")
sketch25.AttachmentSupport = (doc.getObject("XZ_Plane"), [""])
sketch25.MapMode = "FlatFace"
sketch25.AttachmentOffset = App.Placement(App.Vector(0, 0, 29.001751), App.Rotation())
add_polygon(sketch25, [(72, 24.6), (69.2, 22.9), (69.2, 19.7), (72, 18.1), (74.8, 19.7), (74.8, 22.9)])  # lines 0-5
sketch25.addConstraint([
    Sketcher.Constraint("Vertical", 1),
    Sketcher.Constraint("Vertical", 4),
    Sketcher.Constraint("Parallel", 0, 3),
    Sketcher.Constraint("Parallel", 2, 5),
    Sketcher.Constraint("Horizontal", 1, 2, 3, 2),
    Sketcher.Constraint("Horizontal", 0, 2, 4, 2),
    Sketcher.Constraint("Vertical", 2, 2, 5, 2),
    Sketcher.Constraint("Angle", 0, Q("-150 deg")),
    Sketcher.Constraint("DistanceX", -1, 1, 2, 2, Q("72 mm")),
    Sketcher.Constraint("DistanceY", 1, 2, 1, 1, Q("3.25 mm")),
    Sketcher.Constraint("DistanceY", 2, 2, 5, 2, Q("6.5 mm")),
    Sketcher.Constraint("DistanceY", -1, 1, 0, 2, Q("22.94549 mm")),
])
pocket19 = body.newObject("PartDesign::Pocket", "Pocket018")
pocket19.Profile = sketch25
pocket19.Length = 15

# Sketch on XZ plane
sketch26 = body.newObject("Sketcher::SketchObject", "Sketch025")
sketch26.AttachmentSupport = (doc.getObject("XZ_Plane"), [""])
sketch26.MapMode = "FlatFace"
sketch26.AttachmentOffset = App.Placement(App.Vector(0, 0, 2.001751), App.Rotation())
add_polygon(sketch26, [(67, -46), (67, -41), (77, -41), (77, -46)])  # lines 0-3
sketch26.addConstraint([
    Sketcher.Constraint("Vertical", 0),
    Sketcher.Constraint("Horizontal", 1),
    Sketcher.Constraint("Vertical", 2),
    Sketcher.Constraint("Horizontal", 3),
    Sketcher.Constraint("DistanceX", 1, 1, 1, 2, Q("10 mm")),
    Sketcher.Constraint("DistanceY", 0, 1, 0, 2, Q("5 mm")),
    Sketcher.Constraint("DistanceX", -1, 1, 0, 2, Q("67 mm")),
    Sketcher.Constraint("DistanceY", 0, 2, -1, 1, Q("40.67951 mm")),
])
pocket20 = body.newObject("PartDesign::Pocket", "Pocket019")
pocket20.Profile = sketch26
pocket20.Type = "UpToFirst"
pocket20.Reversed = True

# Sketch on XZ plane
sketch27 = body.newObject("Sketcher::SketchObject", "Sketch026")
sketch27.AttachmentSupport = (doc.getObject("XZ_Plane"), [""])
sketch27.MapMode = "FlatFace"
sketch27.AttachmentOffset = App.Placement(App.Vector(0, 0, -20.998249), App.Rotation())
sketch27.addGeometry(Part.Circle(App.Vector(40, 17.3, 0), App.Vector(0, 0, 1), 1.6), False)
sketch27.addConstraint([
    Sketcher.Constraint("Diameter", 0, Q("3.2 mm")),
    Sketcher.Constraint("DistanceX", -1, 1, 0, 3, Q("40 mm")),
    Sketcher.Constraint("DistanceY", -1, 1, 0, 3, Q("17.32049 mm")),
])
pocket21 = body.newObject("PartDesign::Pocket", "Pocket020")
pocket21.Profile = sketch27
pocket21.Type = "ThroughAll"
pocket21.Reversed = True

# Sketch on XZ plane
sketch28 = body.newObject("Sketcher::SketchObject", "Sketch027")
sketch28.AttachmentSupport = (doc.getObject("XZ_Plane"), [""])
sketch28.MapMode = "FlatFace"
sketch28.AttachmentOffset = App.Placement(App.Vector(0, 0, 29.001751), App.Rotation())
add_polygon(sketch28, [(38.4, 20.1), (36.8, 17.3), (38.4, 14.5), (41.6, 14.5), (43.2, 17.3), (41.6, 20.1)])  # lines 0-5
sketch28.addConstraint([
    Sketcher.Constraint("Horizontal", 2),
    Sketcher.Constraint("Horizontal", 5),
    Sketcher.Constraint("Parallel", 0, 3),
    Sketcher.Constraint("Parallel", 1, 4),
    Sketcher.Constraint("Horizontal", 0, 2, 3, 2),
    Sketcher.Constraint("Vertical", 2, 2, 4, 2),
    Sketcher.Constraint("Vertical", 1, 2, 5, 2),
    Sketcher.Constraint("Angle", 0, Q("-120 deg")),
    Sketcher.Constraint("DistanceX", 2, 1, 2, 2, Q("3.25 mm")),
    Sketcher.Constraint("DistanceX", 0, 2, 3, 2, Q("6.5 mm")),
    Sketcher.Constraint("DistanceX", -1, 1, 0, 2, Q("36.75 mm")),
    Sketcher.Constraint("DistanceY", -1, 1, 0, 2, Q("17.32049 mm")),
])
pocket22 = body.newObject("PartDesign::Pocket", "Pocket021")
pocket22.Profile = sketch28
pocket22.Length = 14

# Sketch on YZ plane
sketch29 = body.newObject("Sketcher::SketchObject", "Sketch028")
sketch29.AttachmentSupport = (doc.getObject("YZ_Plane"), [""])
sketch29.MapMode = "FlatFace"
sketch29.AttachmentOffset = App.Placement(App.Vector(0, 0, 80), App.Rotation())
sketch29.addGeometry(Part.Circle(App.Vector(-16.5, 3.3, 0), App.Vector(0, 0, 1), 3.2), False)
sketch29.addConstraint([
    Sketcher.Constraint("Diameter", 0, Q("6.4 mm")),
    Sketcher.Constraint("DistanceY", -1, 1, 0, 3, Q("3.32049 mm")),
    Sketcher.Constraint("DistanceX", 0, 3, -1, 1, Q("16.511384 mm")),
])
pocket23 = body.newObject("PartDesign::Pocket", "Pocket022")
pocket23.Profile = sketch29
pocket23.Type = "UpToFirst"

# Sketch on YZ plane
sketch30 = body.newObject("Sketcher::SketchObject", "Sketch029")
sketch30.AttachmentSupport = (doc.getObject("YZ_Plane"), [""])
sketch30.MapMode = "FlatFace"
sketch30.AttachmentOffset = App.Placement(App.Vector(0, 0, 77), App.Rotation())
add_polygon(sketch30, [(-7, -1.7), (-26, -1.7), (-26, 8.3), (-7, 8.3)])  # lines 0-3
sketch30.addGeometry(Part.Circle(App.Vector(-16.5, 3.3, 0), App.Vector(0, 0, 1), 3.2), False)  # 4
sketch30.addConstraint([
    Sketcher.Constraint("Horizontal", 0),
    Sketcher.Constraint("Vertical", 1),
    Sketcher.Constraint("Horizontal", 2),
    Sketcher.Constraint("Vertical", 3),
    Sketcher.Constraint("Diameter", 4, Q("6.4 mm")),
    Sketcher.Constraint("DistanceY", 1, 1, 1, 2, Q("10 mm")),
    Sketcher.Constraint("DistanceY", 0, 2, 4, 3, Q("5 mm")),
    Sketcher.Constraint("DistanceX", 0, 2, 0, 1, Q("18.980736 mm")),
    Sketcher.Constraint("DistanceY", -1, 1, 4, 3, Q("3.32049 mm")),
    Sketcher.Constraint("DistanceX", 0, 2, -1, 1, Q("26.001751 mm")),
    Sketcher.Constraint("DistanceX", 4, 3, -1, 1, Q("16.511384 mm")),
])
pad7 = body.newObject("PartDesign::Pad", "Pad006")
pad7.Profile = sketch30
pad7.Length = 3
pad7.Reversed = True

doc.recompute()
